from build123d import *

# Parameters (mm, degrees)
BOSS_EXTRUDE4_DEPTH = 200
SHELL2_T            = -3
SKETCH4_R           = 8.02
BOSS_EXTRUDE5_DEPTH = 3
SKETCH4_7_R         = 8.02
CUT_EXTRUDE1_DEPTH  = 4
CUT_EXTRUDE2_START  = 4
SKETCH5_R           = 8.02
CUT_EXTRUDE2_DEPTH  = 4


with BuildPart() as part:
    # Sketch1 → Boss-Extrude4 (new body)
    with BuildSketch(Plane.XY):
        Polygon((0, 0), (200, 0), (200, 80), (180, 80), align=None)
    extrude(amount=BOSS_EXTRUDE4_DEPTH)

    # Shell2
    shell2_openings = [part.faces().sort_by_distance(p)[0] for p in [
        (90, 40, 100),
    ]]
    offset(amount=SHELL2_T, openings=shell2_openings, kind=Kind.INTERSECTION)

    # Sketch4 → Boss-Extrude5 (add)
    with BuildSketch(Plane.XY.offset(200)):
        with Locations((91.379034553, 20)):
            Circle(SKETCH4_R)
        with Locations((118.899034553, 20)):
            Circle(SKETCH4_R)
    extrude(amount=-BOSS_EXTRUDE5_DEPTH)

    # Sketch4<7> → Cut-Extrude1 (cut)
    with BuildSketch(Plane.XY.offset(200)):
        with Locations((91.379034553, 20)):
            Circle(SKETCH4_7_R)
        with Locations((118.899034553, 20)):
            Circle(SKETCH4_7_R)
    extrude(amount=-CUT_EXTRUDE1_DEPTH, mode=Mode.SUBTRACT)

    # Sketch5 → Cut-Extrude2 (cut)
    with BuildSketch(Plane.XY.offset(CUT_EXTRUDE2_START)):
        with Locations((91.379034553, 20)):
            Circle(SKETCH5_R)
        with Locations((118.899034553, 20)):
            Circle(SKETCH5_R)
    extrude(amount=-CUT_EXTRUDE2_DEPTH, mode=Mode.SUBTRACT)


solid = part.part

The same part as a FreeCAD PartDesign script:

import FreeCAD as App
import Part
import Sketcher

V = App.Vector
Q = App.Units.Quantity


def faces_at(feature, points):
    """Names of the faces that lie closest to the given points."""
    faces = feature.Shape.Faces
    near = lambda p: min(range(len(faces)), key=lambda i: faces[i].distToShape(Part.Vertex(*p))[0])
    return sorted({f"Face{near(p) + 1}" for p in points})


def add_polygon(sketch, points):
    """Adds a closed chain of lines whose ends are joined by coincident constraints."""
    first, n = sketch.GeometryCount, len(points)
    for a, b in zip(points, points[1:] + points[:1]):
        sketch.addGeometry(Part.LineSegment(App.Vector(*a, 0), App.Vector(*b, 0)), False)
    for i in range(n):
        sketch.addConstraint(Sketcher.Constraint("Coincident", first + i, 2, first + (i + 1) % n, 1))

doc = App.newDocument("Part")
body = doc.addObject("PartDesign::Body", "Body")

sketch1 = body.newObject("Sketcher::SketchObject", "Sketch")
sketch1.AttachmentSupport = (doc.getObject("XY_Plane"), [""])
sketch1.MapMode = "FlatFace"
add_polygon(sketch1, [(0, 0), (200, 0), (200, 80), (180, 80)])
sketch1.addConstraint(Sketcher.Constraint("Horizontal", 0))
sketch1.addConstraint(Sketcher.Constraint("Vertical", 1))
sketch1.addConstraint(Sketcher.Constraint("Horizontal", 2))
sketch1.addConstraint(Sketcher.Constraint("Coincident", 3, 2, -1, 1))
sketch1.addConstraint(Sketcher.Constraint("DistanceX", 0, 1, 0, 2, Q("200 mm")))
sketch1.addConstraint(Sketcher.Constraint("DistanceX", 2, 2, 2, 1, Q("20 mm")))
sketch1.addConstraint(Sketcher.Constraint("DistanceY", 1, 1, 1, 2, Q("80 mm")))
pad1 = body.newObject("PartDesign::Pad", "Pad")
pad1.Profile = sketch1
pad1.Length = 200
doc.recompute()

thickness = body.newObject("PartDesign::Thickness", "Thickness")
thickness.Base = (pad1, faces_at(pad1, [(90, 40, 100)]))
thickness.Value = 3
thickness.Reversed = True
thickness.Join = "Intersection"

sketch2 = body.newObject("Sketcher::SketchObject", "Sketch001")
sketch2.AttachmentSupport = (doc.getObject("XY_Plane"), [""])
sketch2.MapMode = "FlatFace"
sketch2.AttachmentOffset = App.Placement(V(0, 0, 200), App.Rotation())
sketch2.addGeometry(Part.Circle(V(91, 20, 0), V(0, 0, 1), 8), False)
sketch2.addGeometry(Part.Circle(V(119, 20, 0), V(0, 0, 1), 8), False)
sketch2.addConstraint(Sketcher.Constraint("Equal", 0, 1))
sketch2.addConstraint(Sketcher.Constraint("Horizontal", 0, 3, 1, 3))
sketch2.addConstraint(Sketcher.Constraint("Diameter", 0, Q("16.04 mm")))
sketch2.addConstraint(Sketcher.Constraint("DistanceY", -1, 1, 0, 3, Q("20 mm")))
sketch2.addConstraint(Sketcher.Constraint("DistanceX", 0, 3, 1, 3, Q("27.52 mm")))
sketch2.addConstraint(Sketcher.Constraint("DistanceX", -1, 1, 0, 3, Q("91.379035 mm")))
pad2 = body.newObject("PartDesign::Pad", "Pad001")
pad2.Profile = sketch2
pad2.Length = 3
pad2.Reversed = True

sketch3 = body.newObject("Sketcher::SketchObject", "Sketch002")
sketch3.AttachmentSupport = (doc.getObject("XY_Plane"), [""])
sketch3.MapMode = "FlatFace"
sketch3.AttachmentOffset = App.Placement(V(0, 0, 200), App.Rotation())
sketch3.addGeometry(Part.Circle(V(91, 20, 0), V(0, 0, 1), 8), False)
sketch3.addGeometry(Part.Circle(V(119, 20, 0), V(0, 0, 1), 8), False)
sketch3.addConstraint(Sketcher.Constraint("Equal", 0, 1))
sketch3.addConstraint(Sketcher.Constraint("Horizontal", 0, 3, 1, 3))
sketch3.addConstraint(Sketcher.Constraint("Diameter", 0, Q("16.04 mm")))
sketch3.addConstraint(Sketcher.Constraint("DistanceY", -1, 1, 0, 3, Q("20 mm")))
sketch3.addConstraint(Sketcher.Constraint("DistanceX", 0, 3, 1, 3, Q("27.52 mm")))
sketch3.addConstraint(Sketcher.Constraint("DistanceX", -1, 1, 0, 3, Q("91.379035 mm")))
pocket1 = body.newObject("PartDesign::Pocket", "Pocket")
pocket1.Profile = sketch3
pocket1.Length = 4

sketch4 = body.newObject("Sketcher::SketchObject", "Sketch003")
sketch4.AttachmentSupport = (doc.getObject("XY_Plane"), [""])
sketch4.MapMode = "FlatFace"
sketch4.AttachmentOffset = App.Placement(V(0, 0, 4), App.Rotation())
sketch4.addGeometry(Part.Circle(V(91, 20, 0), V(0, 0, 1), 8), False)
sketch4.addGeometry(Part.Circle(V(119, 20, 0), V(0, 0, 1), 8), False)
sketch4.addConstraint(Sketcher.Constraint("Equal", 0, 1))
sketch4.addConstraint(Sketcher.Constraint("Horizontal", 0, 3, 1, 3))
sketch4.addConstraint(Sketcher.Constraint("Diameter", 0, Q("16.04 mm")))
sketch4.addConstraint(Sketcher.Constraint("DistanceY", -1, 1, 0, 3, Q("20 mm")))
sketch4.addConstraint(Sketcher.Constraint("DistanceX", 0, 3, 1, 3, Q("27.52 mm")))
sketch4.addConstraint(Sketcher.Constraint("DistanceX", -1, 1, 0, 3, Q("91.379035 mm")))
pocket2 = body.newObject("PartDesign::Pocket", "Pocket001")
pocket2.Profile = sketch4
pocket2.Length = 4

doc.recompute()
